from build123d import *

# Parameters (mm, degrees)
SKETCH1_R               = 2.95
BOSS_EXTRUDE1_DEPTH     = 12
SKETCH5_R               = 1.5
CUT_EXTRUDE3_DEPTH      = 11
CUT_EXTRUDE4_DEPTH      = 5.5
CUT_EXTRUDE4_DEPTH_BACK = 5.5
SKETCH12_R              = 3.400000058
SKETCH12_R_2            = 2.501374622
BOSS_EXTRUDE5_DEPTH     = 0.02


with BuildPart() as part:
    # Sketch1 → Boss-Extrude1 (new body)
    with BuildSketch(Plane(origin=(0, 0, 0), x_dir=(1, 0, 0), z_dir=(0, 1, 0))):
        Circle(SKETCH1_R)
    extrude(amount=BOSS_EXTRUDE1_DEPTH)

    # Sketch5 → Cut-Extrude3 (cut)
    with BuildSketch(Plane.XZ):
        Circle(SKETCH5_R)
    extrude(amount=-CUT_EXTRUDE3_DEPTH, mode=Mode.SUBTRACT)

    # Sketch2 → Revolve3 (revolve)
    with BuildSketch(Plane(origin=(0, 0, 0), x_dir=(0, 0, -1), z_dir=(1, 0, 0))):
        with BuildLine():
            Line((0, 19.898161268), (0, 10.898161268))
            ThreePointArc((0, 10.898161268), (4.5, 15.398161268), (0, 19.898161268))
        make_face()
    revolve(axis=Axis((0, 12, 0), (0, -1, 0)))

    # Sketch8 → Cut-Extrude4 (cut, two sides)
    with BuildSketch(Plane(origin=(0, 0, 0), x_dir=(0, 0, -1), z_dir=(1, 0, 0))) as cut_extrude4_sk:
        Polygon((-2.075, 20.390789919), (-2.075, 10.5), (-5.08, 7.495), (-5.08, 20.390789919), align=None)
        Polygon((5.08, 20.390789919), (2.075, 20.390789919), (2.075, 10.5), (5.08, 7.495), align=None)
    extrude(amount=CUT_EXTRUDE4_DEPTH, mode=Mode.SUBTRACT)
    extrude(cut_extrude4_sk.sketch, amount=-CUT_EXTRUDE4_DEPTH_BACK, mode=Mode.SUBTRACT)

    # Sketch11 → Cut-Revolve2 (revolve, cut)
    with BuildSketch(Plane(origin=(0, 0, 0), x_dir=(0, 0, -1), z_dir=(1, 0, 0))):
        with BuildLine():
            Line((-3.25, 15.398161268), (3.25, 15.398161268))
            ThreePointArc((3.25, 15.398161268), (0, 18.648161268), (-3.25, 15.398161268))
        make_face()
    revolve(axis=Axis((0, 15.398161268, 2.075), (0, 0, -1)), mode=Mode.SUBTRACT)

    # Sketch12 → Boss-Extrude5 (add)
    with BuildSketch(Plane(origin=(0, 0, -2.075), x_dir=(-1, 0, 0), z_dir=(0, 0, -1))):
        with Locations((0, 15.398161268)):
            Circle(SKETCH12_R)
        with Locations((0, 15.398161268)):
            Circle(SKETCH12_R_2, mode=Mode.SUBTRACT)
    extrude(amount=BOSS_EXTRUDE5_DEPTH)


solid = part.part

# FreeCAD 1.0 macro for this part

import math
import FreeCAD as App
import Part
import Sketcher

V = App.Vector

doc = App.newDocument("Part")
body = doc.addObject("PartDesign::Body", "Body")

sketch1 = doc.addObject("Sketcher::SketchObject", "Sketch")
body.addObject(sketch1)
sketch1.AttachmentSupport = (doc.XZ_Plane, [""])
sketch1.MapMode = "FlatFace"
sketch1.addGeometry(Part.Circle(V(0, 0, 0), V(0, 0, 1), 3), False)
sketch1.addConstraint([
    Sketcher.Constraint("Coincident", 0, 3, -1, 1),
    Sketcher.Constraint("Diameter", 0, 5.9),
])
pad1 = doc.addObject("PartDesign::Pad", "Pad")
body.addObject(pad1)
pad1.Profile = sketch1
pad1.Length = 12
pad1.Reversed = True

sketch2 = doc.addObject("Sketcher::SketchObject", "Sketch001")
body.addObject(sketch2)
sketch2.AttachmentSupport = (doc.XZ_Plane, [""])
sketch2.MapMode = "FlatFace"
sketch2.addGeometry(Part.Circle(V(0, 0, 0), V(0, 0, 1), 1.5), False)
sketch2.addConstraint([
    Sketcher.Constraint("Coincident", 0, 3, -1, 1),
    Sketcher.Constraint("Diameter", 0, 3.0),
])
pocket1 = doc.addObject("PartDesign::Pocket", "Pocket")
body.addObject(pocket1)
pocket1.Profile = sketch2
pocket1.Length = 11

sketch3 = doc.addObject("Sketcher::SketchObject", "Sketch002")
body.addObject(sketch3)
sketch3.AttachmentSupport = (doc.YZ_Plane, [""])
sketch3.MapMode = "FlatFace"
sketch3.addGeometry([
    Part.LineSegment(V(19.9, 0, 0), V(10.9, 0, 0)),
    Part.ArcOfCircle(Part.Circle(V(15.4, 0, 0), V(0, 0, 1), 4.5), math.radians(180), math.radians(360)),
], False)
sketch3.addConstraint([
    Sketcher.Constraint("Coincident", 0, 1, 1, 2),
    Sketcher.Constraint("Coincident", 1, 1, 0, 2),
    Sketcher.Constraint("Horizontal", 0),
    Sketcher.Constraint("PointOnObject", 1, 3, -1),
    Sketcher.Constraint("PointOnObject", 0, 1, -1),
    Sketcher.Constraint("Radius", 1, 4.5),
    Sketcher.Constraint("DistanceX", -1, 1, 1, 3, 15.398161),
])
revolution = doc.addObject("PartDesign::Revolution", "Revolution")
body.addObject(revolution)
revolution.Profile = sketch3
revolution.ReferenceAxis = (sketch3, ["H_Axis"])
revolution.Angle = 360

sketch4 = doc.addObject("Sketcher::SketchObject", "Sketch003")
body.addObject(sketch4)
sketch4.AttachmentSupport = (doc.YZ_Plane, [""])
sketch4.MapMode = "FlatFace"
sketch4.addGeometry([
    Part.LineSegment(V(10.5, 2.1, 0), V(20.4, 2.1, 0)),
    Part.LineSegment(V(20.4, 2.1, 0), V(20.4, 5.1, 0)),
    Part.LineSegment(V(20.4, 5.1, 0), V(7.5, 5.1, 0)),
    Part.LineSegment(V(7.5, 5.1, 0), V(10.5, 2.1, 0)),
    Part.LineSegment(V(20.4, -5.1, 0), V(20.4, -2.1, 0)),
    Part.LineSegment(V(20.4, -2.1, 0), V(10.5, -2.1, 0)),
    Part.LineSegment(V(10.5, -2.1, 0), V(7.5, -5.1, 0)),
    Part.LineSegment(V(7.5, -5.1, 0), V(20.4, -5.1, 0)),
], False)
sketch4.addConstraint([
    Sketcher.Constraint("Coincident", 0, 2, 1, 1),
    Sketcher.Constraint("Coincident", 1, 2, 2, 1),
    Sketcher.Constraint("Coincident", 2, 2, 3, 1),
    Sketcher.Constraint("Coincident", 3, 2, 0, 1),
    Sketcher.Constraint("Coincident", 4, 2, 5, 1),
    Sketcher.Constraint("Coincident", 5, 2, 6, 1),
    Sketcher.Constraint("Coincident", 6, 2, 7, 1),
    Sketcher.Constraint("Coincident", 7, 2, 4, 1),
    Sketcher.Constraint("Horizontal", 0),
    Sketcher.Constraint("Vertical", 1),
    Sketcher.Constraint("Horizontal", 2),
    Sketcher.Constraint("Vertical", 4),
    Sketcher.Constraint("Horizontal", 5),
    Sketcher.Constraint("Horizontal", 7),
    Sketcher.Constraint("Symmetric", 0, 2, 4, 2, -1),
    Sketcher.Constraint("Symmetric", 2, 2, 6, 2, -1),
    Sketcher.Constraint("Perpendicular", 3, 6),
    Sketcher.Constraint("Vertical", 3, 2, 5, 2),
    Sketcher.Constraint("DistanceX", -1, 1, 3, 2, 10.5),
    Sketcher.Constraint("DistanceY", 1, 1, 1, 2, 3.005),
    Sketcher.Constraint("DistanceY", -1, 1, 1, 2, 5.08),
    Sketcher.Constraint("DistanceX", 0, 1, 0, 2, 9.89079),
])
pocket2 = doc.addObject("PartDesign::Pocket", "Pocket001")
body.addObject(pocket2)
pocket2.Profile = sketch4
pocket2.Type = "ThroughAll"
pocket2.Midplane = True

sketch5 = doc.addObject("Sketcher::SketchObject", "Sketch004")
body.addObject(sketch5)
sketch5.AttachmentSupport = (doc.YZ_Plane, [""])
sketch5.MapMode = "FlatFace"
sketch5.addGeometry([
    Part.LineSegment(V(15.4, 3.2, 0), V(15.4, -3.2, 0)),
    Part.ArcOfCircle(Part.Circle(V(15.4, 0, 0), V(0, 0, 1), 3.2), math.radians(-90), math.radians(90)),
], False)
sketch5.addGeometry(Part.LineSegment(V(15.4, 3.2, 0), V(15.4, -3.2, 0)), True)
sketch5.addConstraint([
    Sketcher.Constraint("Coincident", 0, 1, 1, 2),
    Sketcher.Constraint("Coincident", 1, 1, 0, 2),
    Sketcher.Constraint("Vertical", 0),
    Sketcher.Constraint("Vertical", 2),
    Sketcher.Constraint("Coincident", 2, 1, 0, 1),
    Sketcher.Constraint("PointOnObject", 1, 3, -1),
    Sketcher.Constraint("Vertical", 1, 3, 0, 1),
    Sketcher.Constraint("Equal", 0, 2),
    Sketcher.Constraint("Radius", 1, 3.25),
    Sketcher.Constraint("DistanceX", -1, 1, 1, 3, 15.398161),
])
groove = doc.addObject("PartDesign::Groove", "Groove")
body.addObject(groove)
groove.Profile = sketch5
groove.ReferenceAxis = (sketch5, ["Axis0"])
groove.Angle = 360

sketch6 = doc.addObject("Sketcher::SketchObject", "Sketch005")
body.addObject(sketch6)
sketch6.AttachmentSupport = (doc.XY_Plane, [""])
sketch6.MapMode = "FlatFace"
sketch6.AttachmentOffset = App.Placement(V(0, 0, -2.075), App.Rotation())
sketch6.addGeometry([
    Part.Circle(V(0, 15.4, 0), V(0, 0, 1), 3.4),
    Part.Circle(V(0, 15.4, 0), V(0, 0, 1), 2.5),
], False)
sketch6.addConstraint([
    Sketcher.Constraint("Coincident", 1, 3, 0, 3),
    Sketcher.Constraint("PointOnObject", 0, 3, -2),
    Sketcher.Constraint("Diameter", 0, 6.8),
    Sketcher.Constraint("Diameter", 1, 5.002749),
    Sketcher.Constraint("DistanceY", -1, 1, 0, 3, 15.398161),
])
pad2 = doc.addObject("PartDesign::Pad", "Pad001")
body.addObject(pad2)
pad2.Profile = sketch6
pad2.Length = 0.02
pad2.Reversed = True

doc.recompute()
